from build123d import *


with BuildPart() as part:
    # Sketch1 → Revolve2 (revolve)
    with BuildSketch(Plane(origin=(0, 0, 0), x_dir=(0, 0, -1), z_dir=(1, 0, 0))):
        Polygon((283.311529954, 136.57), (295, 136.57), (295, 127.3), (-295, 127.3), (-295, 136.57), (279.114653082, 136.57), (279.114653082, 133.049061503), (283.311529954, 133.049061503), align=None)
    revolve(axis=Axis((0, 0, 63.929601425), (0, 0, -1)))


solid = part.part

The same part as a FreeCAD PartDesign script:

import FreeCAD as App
import Part
import Sketcher

V = App.Vector


def add_polygon(sketch, points):
    """Adds a closed chain of lines whose ends are joined by coincident constraints."""
    first, n = sketch.GeometryCount, len(points)
    for a, b in zip(points, points[1:] + points[:1]):
        sketch.addGeometry(Part.LineSegment(App.Vector(*a, 0), App.Vector(*b, 0)), False)
    for i in range(n):
        sketch.addConstraint(Sketcher.Constraint("Coincident", first + i, 2, first + (i + 1) % n, 1))

doc = App.newDocument("Part")
body = doc.addObject("PartDesign::Body", "Body")

# Sketch on YZ plane
sketch1 = doc.addObject("Sketcher::SketchObject", "Sketch")
body.addObject(sketch1)
sketch1.AttachmentSupport = (doc.YZ_Plane, [""])
sketch1.MapMode = "FlatFace"
add_polygon(sketch1, [(136.6, -295), (136.6, -283.3), (133, -283.3), (133, -279.1), (136.6, -279.1), (136.6, 295), (127.3, 295), (127.3, -295)])  # lines 0-7
sketch1.addConstraint([
    Sketcher.Constraint("Vertical", 0),
    Sketcher.Constraint("Horizontal", 1),
    Sketcher.Constraint("Vertical", 2),
    Sketcher.Constraint("Horizontal", 3),
    Sketcher.Constraint("Vertical", 4),
    Sketcher.Constraint("Horizontal", 5),
    Sketcher.Constraint("Vertical", 6),
    Sketcher.Constraint("Horizontal", 7),
    Sketcher.Constraint("Symmetric", 4, 2, 7, 2, -1),
    Sketcher.Constraint("DistanceY", 6, 2, 6, 1, 590.0),
    Sketcher.Constraint("DistanceX", 5, 2, 5, 1, 9.27),
    Sketcher.Constraint("DistanceX", -1, 1, 5, 2, 127.3),
    Sketcher.Constraint("DistanceX", 1, 2, 1, 1, 3.520938),
    Sketcher.Constraint("DistanceY", 0, 1, 0, 2, 11.68847),
    Sketcher.Constraint("DistanceY", 2, 1, 2, 2, 4.196877),
])
revolution = doc.addObject("PartDesign::Revolution", "Revolution")
body.addObject(revolution)
revolution.Profile = sketch1
revolution.ReferenceAxis = (sketch1, ["V_Axis"])
revolution.Angle = 360

doc.recompute()
